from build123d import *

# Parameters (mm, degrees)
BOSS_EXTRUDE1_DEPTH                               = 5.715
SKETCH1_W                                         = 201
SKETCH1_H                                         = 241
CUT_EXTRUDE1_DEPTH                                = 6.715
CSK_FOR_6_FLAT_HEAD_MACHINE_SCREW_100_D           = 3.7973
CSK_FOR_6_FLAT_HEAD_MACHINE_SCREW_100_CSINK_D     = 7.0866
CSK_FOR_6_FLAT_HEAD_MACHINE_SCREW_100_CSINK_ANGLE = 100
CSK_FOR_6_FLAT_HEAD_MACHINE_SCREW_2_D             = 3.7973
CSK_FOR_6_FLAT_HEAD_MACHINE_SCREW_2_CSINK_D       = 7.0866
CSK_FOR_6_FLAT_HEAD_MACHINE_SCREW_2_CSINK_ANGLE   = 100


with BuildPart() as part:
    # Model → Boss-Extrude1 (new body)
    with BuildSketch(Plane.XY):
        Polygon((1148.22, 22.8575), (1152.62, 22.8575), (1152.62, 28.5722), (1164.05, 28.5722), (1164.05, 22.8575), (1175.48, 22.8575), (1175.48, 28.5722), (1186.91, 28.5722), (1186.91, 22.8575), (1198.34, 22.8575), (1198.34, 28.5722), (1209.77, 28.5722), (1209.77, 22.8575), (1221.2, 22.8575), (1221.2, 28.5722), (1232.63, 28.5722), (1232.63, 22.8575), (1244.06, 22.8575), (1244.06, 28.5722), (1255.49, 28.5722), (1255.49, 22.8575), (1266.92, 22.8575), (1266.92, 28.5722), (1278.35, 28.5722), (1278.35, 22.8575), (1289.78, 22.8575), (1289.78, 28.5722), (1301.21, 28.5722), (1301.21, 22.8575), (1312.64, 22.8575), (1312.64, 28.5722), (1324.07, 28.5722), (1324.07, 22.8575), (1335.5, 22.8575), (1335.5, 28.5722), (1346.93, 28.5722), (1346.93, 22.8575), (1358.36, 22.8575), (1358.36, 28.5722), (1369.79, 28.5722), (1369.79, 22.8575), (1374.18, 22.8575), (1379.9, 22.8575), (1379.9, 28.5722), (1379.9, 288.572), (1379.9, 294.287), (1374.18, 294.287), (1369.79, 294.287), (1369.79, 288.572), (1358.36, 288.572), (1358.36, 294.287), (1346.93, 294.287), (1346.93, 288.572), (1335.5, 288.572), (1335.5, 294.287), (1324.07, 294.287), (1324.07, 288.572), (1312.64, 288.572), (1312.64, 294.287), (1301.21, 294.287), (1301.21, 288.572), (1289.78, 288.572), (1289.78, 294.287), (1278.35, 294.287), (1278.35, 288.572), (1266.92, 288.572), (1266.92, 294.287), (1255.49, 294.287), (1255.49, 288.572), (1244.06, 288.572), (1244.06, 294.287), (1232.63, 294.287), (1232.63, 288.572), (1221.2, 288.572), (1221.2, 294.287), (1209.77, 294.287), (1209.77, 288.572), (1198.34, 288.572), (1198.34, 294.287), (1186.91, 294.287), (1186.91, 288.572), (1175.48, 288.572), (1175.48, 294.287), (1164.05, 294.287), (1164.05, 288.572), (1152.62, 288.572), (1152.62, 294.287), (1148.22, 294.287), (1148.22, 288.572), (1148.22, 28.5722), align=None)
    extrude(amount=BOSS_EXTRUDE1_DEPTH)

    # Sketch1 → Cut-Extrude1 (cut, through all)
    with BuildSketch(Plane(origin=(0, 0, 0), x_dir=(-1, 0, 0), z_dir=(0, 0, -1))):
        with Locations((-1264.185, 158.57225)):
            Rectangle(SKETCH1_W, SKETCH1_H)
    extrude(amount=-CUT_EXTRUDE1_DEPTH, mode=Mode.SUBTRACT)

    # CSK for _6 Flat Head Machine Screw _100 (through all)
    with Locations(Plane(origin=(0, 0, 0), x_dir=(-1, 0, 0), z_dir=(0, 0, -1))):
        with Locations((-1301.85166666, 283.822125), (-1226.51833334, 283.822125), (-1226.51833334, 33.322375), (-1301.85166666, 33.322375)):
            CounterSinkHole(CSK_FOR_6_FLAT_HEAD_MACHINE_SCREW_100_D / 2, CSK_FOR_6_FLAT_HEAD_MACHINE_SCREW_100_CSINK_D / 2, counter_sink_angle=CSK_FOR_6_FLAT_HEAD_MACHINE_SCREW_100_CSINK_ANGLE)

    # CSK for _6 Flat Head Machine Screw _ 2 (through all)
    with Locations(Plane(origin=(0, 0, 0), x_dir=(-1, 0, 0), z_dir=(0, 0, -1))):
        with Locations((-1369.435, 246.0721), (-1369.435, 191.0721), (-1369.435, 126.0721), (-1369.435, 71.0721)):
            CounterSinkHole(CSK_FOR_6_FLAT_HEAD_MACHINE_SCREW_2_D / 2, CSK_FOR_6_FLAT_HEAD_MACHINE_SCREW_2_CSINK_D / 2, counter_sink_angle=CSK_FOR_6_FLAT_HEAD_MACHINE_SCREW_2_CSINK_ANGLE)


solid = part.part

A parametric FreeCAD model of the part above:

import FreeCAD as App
import Part
import Sketcher


def add_polygon(sketch, points):
    """Adds a closed chain of lines whose ends are joined by coincident constraints."""
    first, n = sketch.GeometryCount, len(points)
    for a, b in zip(points, points[1:] + points[:1]):
        sketch.addGeometry(Part.LineSegment(App.Vector(*a, 0), App.Vector(*b, 0)), False)
    for i in range(n):
        sketch.addConstraint(Sketcher.Constraint("Coincident", first + i, 2, first + (i + 1) % n, 1))

doc = App.newDocument("Part")
body = doc.addObject("PartDesign::Body", "Body")

sketch1 = body.newObject("Sketcher::SketchObject", "Sketch")
sketch1.AttachmentSupport = (doc.getObject("XY_Plane"), [""])
sketch1.MapMode = "FlatFace"
add_polygon(sketch1, [(1148.22, 22.8575), (1152.62, 22.8575), (1152.62, 28.5722), (1164.05, 28.5722), (1164.05, 22.8575), (1175.48, 22.8575), (1175.48, 28.5722), (1186.91, 28.5722), (1186.91, 22.8575), (1198.34, 22.8575), (1198.34, 28.5722), (1209.77, 28.5722), (1209.77, 22.8575), (1221.2, 22.8575), (1221.2, 28.5722), (1232.63, 28.5722), (1232.63, 22.8575), (1244.06, 22.8575), (1244.06, 28.5722), (1255.49, 28.5722), (1255.49, 22.8575), (1266.92, 22.8575), (1266.92, 28.5722), (1278.35, 28.5722), (1278.35, 22.8575), (1289.78, 22.8575), (1289.78, 28.5722), (1301.21, 28.5722), (1301.21, 22.8575), (1312.64, 22.8575), (1312.64, 28.5722), (1324.07, 28.5722), (1324.07, 22.8575), (1335.5, 22.8575), (1335.5, 28.5722), (1346.93, 28.5722), (1346.93, 22.8575), (1358.36, 22.8575), (1358.36, 28.5722), (1369.79, 28.5722), (1369.79, 22.8575), (1379.9, 22.8575), (1379.9, 294.287), (1369.79, 294.287), (1369.79, 288.572), (1358.36, 288.572), (1358.36, 294.287), (1346.93, 294.287), (1346.93, 288.572), (1335.5, 288.572), (1335.5, 294.287), (1324.07, 294.287), (1324.07, 288.572), (1312.64, 288.572), (1312.64, 294.287), (1301.21, 294.287), (1301.21, 288.572), (1289.78, 288.572), (1289.78, 294.287), (1278.35, 294.287), (1278.35, 288.572), (1266.92, 288.572), (1266.92, 294.287), (1255.49, 294.287), (1255.49, 288.572), (1244.06, 288.572), (1244.06, 294.287), (1232.63, 294.287), (1232.63, 288.572), (1221.2, 288.572), (1221.2, 294.287), (1209.77, 294.287), (1209.77, 288.572), (1198.34, 288.572), (1198.34, 294.287), (1186.91, 294.287), (1186.91, 288.572), (1175.48, 288.572), (1175.48, 294.287), (1164.05, 294.287), (1164.05, 288.572), (1152.62, 288.572), (1152.62, 294.287), (1148.22, 294.287)])
sketch1.addConstraint([
    Sketcher.Constraint("Horizontal", 0),
    Sketcher.Constraint("Vertical", 1),
    Sketcher.Constraint("Horizontal", 2),
    Sketcher.Constraint("Vertical", 3),
    Sketcher.Constraint("Horizontal", 4),
    Sketcher.Constraint("Vertical", 5),
    Sketcher.Constraint("Horizontal", 6),
    Sketcher.Constraint("Vertical", 7),
    Sketcher.Constraint("Horizontal", 8),
    Sketcher.Constraint("Vertical", 9),
    Sketcher.Constraint("Horizontal", 10),
    Sketcher.Constraint("Vertical", 11),
    Sketcher.Constraint("Horizontal", 12),
    Sketcher.Constraint("Vertical", 13),
    Sketcher.Constraint("Horizontal", 14),
    Sketcher.Constraint("Vertical", 15),
    Sketcher.Constraint("Horizontal", 16),
    Sketcher.Constraint("Vertical", 17),
    Sketcher.Constraint("Horizontal", 18),
    Sketcher.Constraint("Vertical", 19),
    Sketcher.Constraint("Horizontal", 20),
    Sketcher.Constraint("Vertical", 21),
    Sketcher.Constraint("Horizontal", 22),
    Sketcher.Constraint("Vertical", 23),
    Sketcher.Constraint("Horizontal", 24),
    Sketcher.Constraint("Vertical", 25),
    Sketcher.Constraint("Horizontal", 26),
    Sketcher.Constraint("Vertical", 27),
    Sketcher.Constraint("Horizontal", 28),
    Sketcher.Constraint("Vertical", 29),
    Sketcher.Constraint("Horizontal", 30),
    Sketcher.Constraint("Vertical", 31),
    Sketcher.Constraint("Horizontal", 32),
    Sketcher.Constraint("Vertical", 33),
    Sketcher.Constraint("Horizontal", 34),
    Sketcher.Constraint("Vertical", 35),
    Sketcher.Constraint("Horizontal", 36),
    Sketcher.Constraint("Vertical", 37),
    Sketcher.Constraint("Horizontal", 38),
    Sketcher.Constraint("Vertical", 39),
    Sketcher.Constraint("Horizontal", 40),
    Sketcher.Constraint("Vertical", 41),
    Sketcher.Constraint("Horizontal", 42),
    Sketcher.Constraint("Vertical", 43),
    Sketcher.Constraint("Horizontal", 44),
    Sketcher.Constraint("Vertical", 45),
    Sketcher.Constraint("Horizontal", 46),
    Sketcher.Constraint("Vertical", 47),
    Sketcher.Constraint("Horizontal", 48),
    Sketcher.Constraint("Vertical", 49),
    Sketcher.Constraint("Horizontal", 50),
    Sketcher.Constraint("Vertical", 51),
    Sketcher.Constraint("Horizontal", 52),
    Sketcher.Constraint("Vertical", 53),
    Sketcher.Constraint("Horizontal", 54),
    Sketcher.Constraint("Vertical", 55),
    Sketcher.Constraint("Horizontal", 56),
    Sketcher.Constraint("Vertical", 57),
    Sketcher.Constraint("Horizontal", 58),
    Sketcher.Constraint("Vertical", 59),
    Sketcher.Constraint("Horizontal", 60),
    Sketcher.Constraint("Vertical", 61),
    Sketcher.Constraint("Horizontal", 62),
    Sketcher.Constraint("Vertical", 63),
    Sketcher.Constraint("Horizontal", 64),
    Sketcher.Constraint("Vertical", 65),
    Sketcher.Constraint("Horizontal", 66),
    Sketcher.Constraint("Vertical", 67),
    Sketcher.Constraint("Horizontal", 68),
    Sketcher.Constraint("Vertical", 69),
    Sketcher.Constraint("Horizontal", 70),
    Sketcher.Constraint("Vertical", 71),
    Sketcher.Constraint("Horizontal", 72),
    Sketcher.Constraint("Vertical", 73),
    Sketcher.Constraint("Horizontal", 74),
    Sketcher.Constraint("Vertical", 75),
    Sketcher.Constraint("Horizontal", 76),
    Sketcher.Constraint("Vertical", 77),
    Sketcher.Constraint("Horizontal", 78),
    Sketcher.Constraint("Vertical", 79),
    Sketcher.Constraint("Horizontal", 80),
    Sketcher.Constraint("Vertical", 81),
    Sketcher.Constraint("Horizontal", 82),
    Sketcher.Constraint("Vertical", 83),
    Sketcher.Constraint("Horizontal", 0, 2, 3, 2),
    Sketcher.Constraint("Horizontal", 2, 2, 5, 2),
    Sketcher.Constraint("Horizontal", 4, 2, 7, 2),
    Sketcher.Constraint("Horizontal", 6, 2, 9, 2),
    Sketcher.Constraint("Horizontal", 8, 2, 11, 2),
    Sketcher.Constraint("Horizontal", 10, 2, 13, 2),
    Sketcher.Constraint("Horizontal", 12, 2, 15, 2),
    Sketcher.Constraint("Horizontal", 14, 2, 17, 2),
    Sketcher.Constraint("Horizontal", 16, 2, 19, 2),
    Sketcher.Constraint("Horizontal", 18, 2, 21, 2),
    Sketcher.Constraint("Horizontal", 20, 2, 23, 2),
    Sketcher.Constraint("Horizontal", 22, 2, 25, 2),
    Sketcher.Constraint("Horizontal", 24, 2, 27, 2),
    Sketcher.Constraint("Horizontal", 26, 2, 29, 2),
    Sketcher.Constraint("Horizontal", 28, 2, 31, 2),
    Sketcher.Constraint("Horizontal", 30, 2, 33, 2),
    Sketcher.Constraint("Horizontal", 32, 2, 35, 2),
    Sketcher.Constraint("Horizontal", 34, 2, 37, 2),
    Sketcher.Constraint("Horizontal", 36, 2, 39, 2),
    Sketcher.Constraint("Horizontal", 42, 2, 45, 2),
    Sketcher.Constraint("Horizontal", 44, 2, 47, 2),
    Sketcher.Constraint("Horizontal", 46, 2, 49, 2),
    Sketcher.Constraint("Horizontal", 48, 2, 51, 2),
    Sketcher.Constraint("Horizontal", 50, 2, 53, 2),
    Sketcher.Constraint("Horizontal", 52, 2, 55, 2),
    Sketcher.Constraint("Horizontal", 54, 2, 57, 2),
    Sketcher.Constraint("Horizontal", 56, 2, 59, 2),
    Sketcher.Constraint("Horizontal", 58, 2, 61, 2),
    Sketcher.Constraint("Horizontal", 60, 2, 63, 2),
    Sketcher.Constraint("Horizontal", 62, 2, 65, 2),
    Sketcher.Constraint("Horizontal", 64, 2, 67, 2),
    Sketcher.Constraint("Horizontal", 66, 2, 69, 2),
    Sketcher.Constraint("Horizontal", 68, 2, 71, 2),
    Sketcher.Constraint("Horizontal", 70, 2, 73, 2),
    Sketcher.Constraint("Horizontal", 72, 2, 75, 2),
    Sketcher.Constraint("Horizontal", 74, 2, 77, 2),
    Sketcher.Constraint("Horizontal", 76, 2, 79, 2),
    Sketcher.Constraint("Horizontal", 78, 2, 81, 2),
    Sketcher.Constraint("Vertical", 39, 2, 42, 2),
    Sketcher.Constraint("Vertical", 37, 2, 44, 2),
    Sketcher.Constraint("Vertical", 35, 2, 46, 2),
    Sketcher.Constraint("Vertical", 33, 2, 48, 2),
    Sketcher.Constraint("Vertical", 31, 2, 50, 2),
    Sketcher.Constraint("Vertical", 29, 2, 52, 2),
    Sketcher.Constraint("Vertical", 27, 2, 54, 2),
    Sketcher.Constraint("Vertical", 25, 2, 56, 2),
    Sketcher.Constraint("Vertical", 23, 2, 58, 2),
    Sketcher.Constraint("Vertical", 21, 2, 60, 2),
    Sketcher.Constraint("Vertical", 19, 2, 62, 2),
    Sketcher.Constraint("Vertical", 17, 2, 64, 2),
    Sketcher.Constraint("Vertical", 15, 2, 66, 2),
    Sketcher.Constraint("Vertical", 13, 2, 68, 2),
    Sketcher.Constraint("Vertical", 11, 2, 70, 2),
    Sketcher.Constraint("Vertical", 9, 2, 72, 2),
    Sketcher.Constraint("Vertical", 7, 2, 74, 2),
    Sketcher.Constraint("Vertical", 5, 2, 76, 2),
    Sketcher.Constraint("Vertical", 3, 2, 78, 2),
    Sketcher.Constraint("Vertical", 1, 2, 80, 2),
    Sketcher.Constraint("Equal", 2, 4),
    Sketcher.Constraint("Equal", 4, 6),
    Sketcher.Constraint("Equal", 6, 8),
    Sketcher.Constraint("Equal", 8, 10),
    Sketcher.Constraint("Equal", 10, 12),
    Sketcher.Constraint("Equal", 12, 14),
    Sketcher.Constraint("Equal", 14, 16),
    Sketcher.Constraint("Equal", 16, 18),
    Sketcher.Constraint("Equal", 18, 20),
    Sketcher.Constraint("Equal", 20, 22),
    Sketcher.Constraint("Equal", 22, 24),
    Sketcher.Constraint("Equal", 24, 26),
    Sketcher.Constraint("Equal", 26, 28),
    Sketcher.Constraint("Equal", 28, 30),
    Sketcher.Constraint("Equal", 30, 32),
    Sketcher.Constraint("Equal", 32, 34),
    Sketcher.Constraint("Equal", 34, 36),
    Sketcher.Constraint("Equal", 36, 38),
    Sketcher.Constraint("DistanceX", 0, 1, 0, 2, 4.4),
    Sketcher.Constraint("DistanceX", 2, 1, 2, 2, 11.43),
    Sketcher.Constraint("DistanceX", 40, 1, 40, 2, 10.11),
    Sketcher.Constraint("DistanceX", -1, 1, 12, 2, 1221.2),
    Sketcher.Constraint("DistanceY", 43, 2, 43, 1, 5.715),
    Sketcher.Constraint("DistanceY", 1, 1, 1, 2, 5.7147),
    Sketcher.Constraint("DistanceY", 41, 1, 41, 2, 271.4295),
    Sketcher.Constraint("DistanceY", -1, 1, 41, 2, 294.287),
])
pad1 = body.newObject("PartDesign::Pad", "Pad")
pad1.Profile = sketch1
pad1.Length = 5.715

sketch2 = body.newObject("Sketcher::SketchObject", "Sketch001")
sketch2.AttachmentSupport = (doc.getObject("XY_Plane"), [""])
sketch2.MapMode = "FlatFace"
add_polygon(sketch2, [(1364.685, 279.07225), (1364.685, 38.07225), (1163.685, 38.07225), (1163.685, 279.07225)])
sketch2.addConstraint([
    Sketcher.Constraint("Vertical", 0),
    Sketcher.Constraint("Horizontal", 1),
    Sketcher.Constraint("Vertical", 2),
    Sketcher.Constraint("Horizontal", 3),
    Sketcher.Constraint("DistanceX", 1, 2, 1, 1, 201.0),
    Sketcher.Constraint("DistanceY", 0, 2, 0, 1, 241.0),
    Sketcher.Constraint("DistanceX", -1, 1, 0, 2, 1364.685),
    Sketcher.Constraint("DistanceY", -1, 1, 0, 2, 38.07225),
])
pocket1 = body.newObject("PartDesign::Pocket", "Pocket")
pocket1.Profile = sketch2
pocket1.Type = "ThroughAll"
pocket1.Reversed = True

sketch3 = body.newObject("Sketcher::SketchObject", "Sketch002")
sketch3.AttachmentSupport = (doc.getObject("XY_Plane"), [""])
sketch3.MapMode = "FlatFace"
sketch3.addGeometry([
    Part.Circle(App.Vector(1301.851667, 283.822125, 0), App.Vector(0, 0, 1), 1.89865),
    Part.Circle(App.Vector(1226.518333, 283.822125, 0), App.Vector(0, 0, 1), 1.89865),
    Part.Circle(App.Vector(1226.518333, 33.322375, 0), App.Vector(0, 0, 1), 1.89865),
    Part.Circle(App.Vector(1301.851667, 33.322375, 0), App.Vector(0, 0, 1), 1.89865),
], False)
sketch3.addConstraint([
    Sketcher.Constraint("Equal", 0, 1),
    Sketcher.Constraint("Equal", 1, 2),
    Sketcher.Constraint("Equal", 2, 3),
    Sketcher.Constraint("Horizontal", 0, 3, 1, 3),
    Sketcher.Constraint("Horizontal", 2, 3, 3, 3),
    Sketcher.Constraint("Vertical", 1, 3, 2, 3),
    Sketcher.Constraint("Vertical", 0, 3, 3, 3),
    Sketcher.Constraint("Diameter", 0, 3.7973),
    Sketcher.Constraint("DistanceY", 2, 3, 1, 3, 250.49975),
    Sketcher.Constraint("DistanceX", -1, 1, 0, 3, 1301.851667),
    Sketcher.Constraint("DistanceY", -1, 1, 0, 3, 283.822125),
    Sketcher.Constraint("DistanceX", -1, 1, 1, 3, 1226.518333),
])
doc.recompute()
hole = body.newObject("PartDesign::Hole", "Hole")
hole.Profile = sketch3
hole.ThreadType = "None"
hole.Diameter = 3.7973
hole.DepthType = "ThroughAll"
hole.HoleCutType = "Countersink"
hole.HoleCutDiameter = 7.0866
hole.HoleCutCountersinkAngle = 100
hole.Reversed = True

sketch4 = body.newObject("Sketcher::SketchObject", "Sketch003")
sketch4.AttachmentSupport = (doc.getObject("XY_Plane"), [""])
sketch4.MapMode = "FlatFace"
sketch4.addGeometry([
    Part.Circle(App.Vector(1369.435, 246.0721, 0), App.Vector(0, 0, 1), 1.89865),
    Part.Circle(App.Vector(1369.435, 191.0721, 0), App.Vector(0, 0, 1), 1.89865),
    Part.Circle(App.Vector(1369.435, 126.0721, 0), App.Vector(0, 0, 1), 1.89865),
    Part.Circle(App.Vector(1369.435, 71.0721, 0), App.Vector(0, 0, 1), 1.89865),
], False)
sketch4.addConstraint([
    Sketcher.Constraint("Equal", 0, 1),
    Sketcher.Constraint("Equal", 1, 2),
    Sketcher.Constraint("Equal", 2, 3),
    Sketcher.Constraint("Vertical", 0, 3, 1, 3),
    Sketcher.Constraint("Vertical", 1, 3, 2, 3),
    Sketcher.Constraint("Vertical", 2, 3, 3, 3),
    Sketcher.Constraint("DistanceY", 1, 3, 0, 3, 55.0),
    Sketcher.Constraint("DistanceY", 2, 3, 1, 3, 65.0),
    Sketcher.Constraint("DistanceY", 3, 3, 2, 3, 55.0),
    Sketcher.Constraint("Diameter", 0, 3.7973),
    Sketcher.Constraint("DistanceX", -1, 1, 0, 3, 1369.435),
    Sketcher.Constraint("DistanceY", -1, 1, 0, 3, 246.0721),
])
doc.recompute()
hole2 = body.newObject("PartDesign::Hole", "Hole001")
hole2.Profile = sketch4
hole2.ThreadType = "None"
hole2.Diameter = 3.7973
hole2.DepthType = "ThroughAll"
hole2.HoleCutType = "Countersink"
hole2.HoleCutDiameter = 7.0866
hole2.HoleCutCountersinkAngle = 100
hole2.Reversed = True

doc.recompute()
